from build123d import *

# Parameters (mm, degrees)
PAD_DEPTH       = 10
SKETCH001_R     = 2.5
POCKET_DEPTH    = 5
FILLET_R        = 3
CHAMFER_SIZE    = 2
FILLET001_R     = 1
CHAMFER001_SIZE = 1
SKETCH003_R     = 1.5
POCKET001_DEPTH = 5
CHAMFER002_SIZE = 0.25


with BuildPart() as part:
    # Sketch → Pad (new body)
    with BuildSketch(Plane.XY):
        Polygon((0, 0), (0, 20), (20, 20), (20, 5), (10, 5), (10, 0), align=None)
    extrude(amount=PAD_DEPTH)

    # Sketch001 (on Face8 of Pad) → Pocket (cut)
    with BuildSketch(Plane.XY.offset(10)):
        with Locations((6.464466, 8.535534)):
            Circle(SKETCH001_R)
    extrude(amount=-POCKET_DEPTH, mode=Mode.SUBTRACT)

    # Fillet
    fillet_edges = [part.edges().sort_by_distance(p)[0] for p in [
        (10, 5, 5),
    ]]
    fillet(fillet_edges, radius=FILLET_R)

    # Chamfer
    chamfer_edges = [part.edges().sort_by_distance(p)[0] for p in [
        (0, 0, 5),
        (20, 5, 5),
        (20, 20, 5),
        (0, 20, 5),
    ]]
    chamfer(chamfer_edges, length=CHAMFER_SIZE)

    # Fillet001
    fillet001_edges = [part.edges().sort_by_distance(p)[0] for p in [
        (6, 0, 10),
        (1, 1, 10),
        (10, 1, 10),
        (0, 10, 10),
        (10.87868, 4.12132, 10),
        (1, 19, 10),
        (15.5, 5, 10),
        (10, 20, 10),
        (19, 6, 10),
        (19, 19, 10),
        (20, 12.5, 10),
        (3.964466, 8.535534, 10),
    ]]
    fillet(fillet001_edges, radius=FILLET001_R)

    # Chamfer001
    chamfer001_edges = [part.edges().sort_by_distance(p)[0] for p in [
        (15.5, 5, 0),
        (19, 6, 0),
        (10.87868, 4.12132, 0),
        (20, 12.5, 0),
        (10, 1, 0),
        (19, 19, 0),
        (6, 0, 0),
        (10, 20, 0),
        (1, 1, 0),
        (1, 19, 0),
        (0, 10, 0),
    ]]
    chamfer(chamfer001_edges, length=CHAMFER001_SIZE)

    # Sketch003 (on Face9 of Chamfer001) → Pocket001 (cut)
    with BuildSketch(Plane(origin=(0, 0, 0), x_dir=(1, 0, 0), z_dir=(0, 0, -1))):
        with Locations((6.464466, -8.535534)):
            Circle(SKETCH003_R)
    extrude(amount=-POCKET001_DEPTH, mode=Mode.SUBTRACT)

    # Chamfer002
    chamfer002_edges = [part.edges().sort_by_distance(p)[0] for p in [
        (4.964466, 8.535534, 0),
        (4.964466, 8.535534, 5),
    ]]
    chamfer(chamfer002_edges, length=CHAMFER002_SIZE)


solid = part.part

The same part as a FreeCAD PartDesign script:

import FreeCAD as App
import Part
import Sketcher
Q = App.Units.Quantity


def edges_at(feature, points):
    """Names of the edges that pass closest to the given points."""
    edges = feature.Shape.Edges
    near = lambda p: min(range(len(edges)), key=lambda i: edges[i].distToShape(Part.Vertex(*p))[0])
    return sorted({f"Edge{near(p) + 1}" for p in points})

doc = App.newDocument("Part")
body = doc.addObject("PartDesign::Body", "Body")

# Sketch on XY plane
sketch1 = body.newObject("Sketcher::SketchObject", "Sketch")
sketch1.AttachmentSupport = (doc.getObject("XY_Plane"), [""])
sketch1.MapMode = "FlatFace"
sketch1.addGeometry(Part.LineSegment(App.Vector(0, 20, 0), App.Vector(0, 0, 0)), False)
sketch1.addGeometry(Part.LineSegment(App.Vector(0, 0, 0), App.Vector(10, 0, 0)), False)
sketch1.addGeometry(Part.LineSegment(App.Vector(10, 0, 0), App.Vector(10, 5, 0)), False)
sketch1.addGeometry(Part.LineSegment(App.Vector(10, 5, 0), App.Vector(20, 5, 0)), False)
sketch1.addGeometry(Part.LineSegment(App.Vector(20, 5, 0), App.Vector(20, 20, 0)), False)
sketch1.addGeometry(Part.LineSegment(App.Vector(20, 20, 0), App.Vector(0, 20, 0)), False)
sketch1.addConstraint(Sketcher.Constraint("Coincident", 0, 2, 1, 1))
sketch1.addConstraint(Sketcher.Constraint("Coincident", 1, 2, 2, 1))
sketch1.addConstraint(Sketcher.Constraint("Coincident", 2, 2, 3, 1))
sketch1.addConstraint(Sketcher.Constraint("Coincident", 3, 2, 4, 1))
sketch1.addConstraint(Sketcher.Constraint("Coincident", 4, 2, 5, 1))
sketch1.addConstraint(Sketcher.Constraint("Coincident", 5, 2, 0, 1))
sketch1.addConstraint(Sketcher.Constraint("Vertical", 0))
sketch1.addConstraint(Sketcher.Constraint("Horizontal", 1))
sketch1.addConstraint(Sketcher.Constraint("Vertical", 2))
sketch1.addConstraint(Sketcher.Constraint("Horizontal", 3))
sketch1.addConstraint(Sketcher.Constraint("Vertical", 4))
sketch1.addConstraint(Sketcher.Constraint("Horizontal", 5))
sketch1.addConstraint(Sketcher.Constraint("Coincident", 0, 2, -1, 1))
sketch1.addConstraint(Sketcher.Constraint("Equal", 1, 3))
sketch1.addConstraint(Sketcher.Constraint("Equal", 5, 0))
sketch1.addConstraint(Sketcher.Constraint("DistanceX", 1, 1, 1, 2, Q("10 mm")))
sketch1.addConstraint(Sketcher.Constraint("DistanceY", 2, 1, 2, 2, Q("5 mm")))
pad1 = body.newObject("PartDesign::Pad", "Pad")
pad1.Profile = sketch1
pad1.Length = 10

# Sketch on XY plane
sketch2 = body.newObject("Sketcher::SketchObject", "Sketch001")
sketch2.AttachmentSupport = (doc.getObject("XY_Plane"), [""])
sketch2.MapMode = "FlatFace"
sketch2.AttachmentOffset = App.Placement(App.Vector(0, 0, 10), App.Rotation())
sketch2.addGeometry(Part.Circle(App.Vector(6.5, 8.5, 0), App.Vector(0, 0, 1), 2.5), False)
sketch2.addConstraint(Sketcher.Constraint("Diameter", 0, Q("5 mm")))
sketch2.addConstraint(Sketcher.Constraint("DistanceX", -1, 1, 0, 3, Q("6.464466 mm")))
sketch2.addConstraint(Sketcher.Constraint("DistanceY", -1, 1, 0, 3, Q("8.535534 mm")))
pocket1 = body.newObject("PartDesign::Pocket", "Pocket")
pocket1.Profile = sketch2
pocket1.Length = 5
doc.recompute()

fillet = body.newObject("PartDesign::Fillet", "Fillet")
fillet.Base = (pocket1, edges_at(pocket1, [(10, 5, 5)]))
fillet.Radius = 3
doc.recompute()

chamfer = body.newObject("PartDesign::Chamfer", "Chamfer")
chamfer.Base = (fillet, edges_at(fillet, [
    (0, 0, 5),
    (20, 5, 5),
    (20, 20, 5),
    (0, 20, 5),
]))
chamfer.Size = 2
doc.recompute()

fillet2 = body.newObject("PartDesign::Fillet", "Fillet001")
fillet2.Base = (chamfer, edges_at(chamfer, [
    (6, 0, 10),
    (1, 1, 10),
    (10, 1, 10),
    (0, 10, 10),
    (10.879, 4.121, 10),
    (1, 19, 10),
    (15.5, 5, 10),
    (10, 20, 10),
    (19, 6, 10),
    (19, 19, 10),
    (20, 12.5, 10),
    (3.964, 8.536, 10),
]))
fillet2.Radius = 1
doc.recompute()

chamfer2 = body.newObject("PartDesign::Chamfer", "Chamfer001")
chamfer2.Base = (fillet2, edges_at(fillet2, [
    (15.5, 5, 0),
    (19, 6, 0),
    (10.879, 4.121, 0),
    (20, 12.5, 0),
    (10, 1, 0),
    (19, 19, 0),
    (6, 0, 0),
    (10, 20, 0),
    (1, 1, 0),
    (1, 19, 0),
    (0, 10, 0),
]))
chamfer2.Size = 1

# Sketch on XY plane
sketch3 = body.newObject("Sketcher::SketchObject", "Sketch002")
sketch3.AttachmentSupport = (doc.getObject("XY_Plane"), [""])
sketch3.MapMode = "FlatFace"
sketch3.addGeometry(Part.Circle(App.Vector(6.5, 8.5, 0), App.Vector(0, 0, 1), 1.5), False)
sketch3.addConstraint(Sketcher.Constraint("Diameter", 0, Q("3 mm")))
sketch3.addConstraint(Sketcher.Constraint("DistanceX", -1, 1, 0, 3, Q("6.464466 mm")))
sketch3.addConstraint(Sketcher.Constraint("DistanceY", -1, 1, 0, 3, Q("8.535534 mm")))
pocket2 = body.newObject("PartDesign::Pocket", "Pocket001")
pocket2.Profile = sketch3
pocket2.Length = 5
pocket2.Reversed = True
doc.recompute()

chamfer3 = body.newObject("PartDesign::Chamfer", "Chamfer002")
chamfer3.Base = (pocket2, edges_at(pocket2, [(4.964, 8.536, 0), (4.964, 8.536, 5)]))
chamfer3.Size = 0.25

doc.recompute()
